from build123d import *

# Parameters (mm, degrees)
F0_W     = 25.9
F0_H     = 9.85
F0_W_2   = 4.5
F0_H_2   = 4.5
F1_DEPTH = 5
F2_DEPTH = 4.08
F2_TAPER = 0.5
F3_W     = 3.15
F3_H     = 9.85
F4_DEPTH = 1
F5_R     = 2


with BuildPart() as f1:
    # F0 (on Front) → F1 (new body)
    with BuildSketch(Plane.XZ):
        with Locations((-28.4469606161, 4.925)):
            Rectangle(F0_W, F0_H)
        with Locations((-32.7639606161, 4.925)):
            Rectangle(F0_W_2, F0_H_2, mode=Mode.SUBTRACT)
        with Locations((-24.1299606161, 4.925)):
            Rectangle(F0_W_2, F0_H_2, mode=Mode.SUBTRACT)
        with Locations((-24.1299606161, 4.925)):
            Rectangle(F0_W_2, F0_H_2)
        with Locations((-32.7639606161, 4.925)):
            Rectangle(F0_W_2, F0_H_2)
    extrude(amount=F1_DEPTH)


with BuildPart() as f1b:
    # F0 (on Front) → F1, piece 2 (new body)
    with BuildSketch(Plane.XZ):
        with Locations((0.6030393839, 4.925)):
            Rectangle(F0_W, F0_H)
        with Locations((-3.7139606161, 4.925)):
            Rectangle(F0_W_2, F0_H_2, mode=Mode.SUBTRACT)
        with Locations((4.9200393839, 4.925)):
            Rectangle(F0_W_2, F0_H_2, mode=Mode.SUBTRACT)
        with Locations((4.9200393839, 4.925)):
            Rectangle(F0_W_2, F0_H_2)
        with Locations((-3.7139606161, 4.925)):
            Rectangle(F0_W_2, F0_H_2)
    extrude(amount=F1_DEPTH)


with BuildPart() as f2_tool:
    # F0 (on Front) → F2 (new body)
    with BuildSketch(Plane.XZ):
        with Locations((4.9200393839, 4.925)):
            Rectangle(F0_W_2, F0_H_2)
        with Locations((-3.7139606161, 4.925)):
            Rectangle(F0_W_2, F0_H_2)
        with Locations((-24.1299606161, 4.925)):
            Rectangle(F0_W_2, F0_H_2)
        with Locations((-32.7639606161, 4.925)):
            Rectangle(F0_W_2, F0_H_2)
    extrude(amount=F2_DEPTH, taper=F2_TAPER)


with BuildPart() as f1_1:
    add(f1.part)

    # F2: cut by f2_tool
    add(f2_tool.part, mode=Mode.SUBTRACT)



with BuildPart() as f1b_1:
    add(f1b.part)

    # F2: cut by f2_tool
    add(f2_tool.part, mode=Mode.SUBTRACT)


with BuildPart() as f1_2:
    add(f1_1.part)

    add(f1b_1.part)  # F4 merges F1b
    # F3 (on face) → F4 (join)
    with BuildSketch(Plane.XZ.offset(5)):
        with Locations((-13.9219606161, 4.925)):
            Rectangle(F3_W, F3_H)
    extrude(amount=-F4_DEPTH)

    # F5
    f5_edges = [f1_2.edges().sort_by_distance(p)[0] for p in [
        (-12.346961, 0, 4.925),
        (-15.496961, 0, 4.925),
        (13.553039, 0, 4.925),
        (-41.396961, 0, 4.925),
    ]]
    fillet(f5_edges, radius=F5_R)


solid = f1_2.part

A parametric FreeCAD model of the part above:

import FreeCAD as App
import Part
import Sketcher
from FreeCAD import Vector


def edges_at(feature, points):
    """Names of the edges that pass closest to the given points."""
    edges = feature.Shape.Edges
    near = lambda p: min(range(len(edges)), key=lambda i: edges[i].distToShape(Part.Vertex(*p))[0])
    return sorted({f"Edge{near(p) + 1}" for p in points})

doc = App.newDocument("Part")
body = doc.addObject("PartDesign::Body", "Body")

# Sketch on XZ plane
sketch1 = doc.addObject("Sketcher::SketchObject", "Sketch")
body.addObject(sketch1)
sketch1.AttachmentSupport = (doc.XZ_Plane, [""])
sketch1.MapMode = "FlatFace"
sketch1.addGeometry([
    Part.LineSegment(Vector(-41, 10, 0), Vector(-41, 0, 0)),
    Part.LineSegment(Vector(-41, 0, 0), Vector(-15, 0, 0)),
    Part.LineSegment(Vector(-15, 0, 0), Vector(-15, 10, 0)),
    Part.LineSegment(Vector(-15, 10, 0), Vector(-41, 10, 0)),
], False)
sketch1.addConstraint([
    Sketcher.Constraint("Coincident", 0, 2, 1, 1),
    Sketcher.Constraint("Coincident", 1, 2, 2, 1),
    Sketcher.Constraint("Coincident", 2, 2, 3, 1),
    Sketcher.Constraint("Coincident", 3, 2, 0, 1),
    Sketcher.Constraint("Vertical", 0),
    Sketcher.Constraint("Horizontal", 1),
    Sketcher.Constraint("Vertical", 2),
    Sketcher.Constraint("Horizontal", 3),
    Sketcher.Constraint("PointOnObject", 0, 2, -1),
    Sketcher.Constraint("DistanceX", 1, 1, 1, 2, 25.9),
    Sketcher.Constraint("DistanceY", 0, 2, 0, 1, 9.85),
    Sketcher.Constraint("DistanceX", 0, 2, -1, 1, 41.396961),
])
pad1 = doc.addObject("PartDesign::Pad", "Pad")
body.addObject(pad1)
pad1.Profile = sketch1
pad1.Length = 5
body2 = doc.addObject("PartDesign::Body", "Body001")

# Sketch on XZ plane
sketch2 = doc.addObject("Sketcher::SketchObject", "Sketch001")
body2.addObject(sketch2)
sketch2.AttachmentSupport = (doc.getObject("XZ_Plane001"), [""])
sketch2.MapMode = "FlatFace"
sketch2.addGeometry([
    Part.LineSegment(Vector(-12, 10, 0), Vector(-12, 0, 0)),
    Part.LineSegment(Vector(-12, 0, 0), Vector(14, 0, 0)),
    Part.LineSegment(Vector(14, 0, 0), Vector(14, 10, 0)),
    Part.LineSegment(Vector(14, 10, 0), Vector(-12, 10, 0)),
], False)
sketch2.addConstraint([
    Sketcher.Constraint("Coincident", 0, 2, 1, 1),
    Sketcher.Constraint("Coincident", 1, 2, 2, 1),
    Sketcher.Constraint("Coincident", 2, 2, 3, 1),
    Sketcher.Constraint("Coincident", 3, 2, 0, 1),
    Sketcher.Constraint("Vertical", 0),
    Sketcher.Constraint("Horizontal", 1),
    Sketcher.Constraint("Vertical", 2),
    Sketcher.Constraint("Horizontal", 3),
    Sketcher.Constraint("PointOnObject", 0, 2, -1),
    Sketcher.Constraint("DistanceX", 1, 1, 1, 2, 25.9),
    Sketcher.Constraint("DistanceY", 0, 2, 0, 1, 9.85),
    Sketcher.Constraint("DistanceX", 0, 2, -1, 1, 12.346961),
])
pad2 = doc.addObject("PartDesign::Pad", "Pad001")
body2.addObject(pad2)
pad2.Profile = sketch2
pad2.Length = 5
body3 = doc.addObject("PartDesign::Body", "Body002")
body3.AllowCompound = True

# Sketch on XZ plane
sketch3 = doc.addObject("Sketcher::SketchObject", "Sketch002")
body3.addObject(sketch3)
sketch3.AttachmentSupport = (doc.getObject("XZ_Plane002"), [""])
sketch3.MapMode = "FlatFace"
sketch3.addGeometry([
    Part.LineSegment(Vector(2.7, 7.2, 0), Vector(2.7, 2.7, 0)),  # 0
    Part.LineSegment(Vector(2.7, 2.7, 0), Vector(7.2, 2.7, 0)),  # 1
    Part.LineSegment(Vector(7.2, 2.7, 0), Vector(7.2, 7.2, 0)),  # 2
    Part.LineSegment(Vector(7.2, 7.2, 0), Vector(2.7, 7.2, 0)),  # 3
    Part.LineSegment(Vector(-6, 7.2, 0), Vector(-6, 2.7, 0)),  # 4
    Part.LineSegment(Vector(-6, 2.7, 0), Vector(-1.5, 2.7, 0)),  # 5
    Part.LineSegment(Vector(-1.5, 2.7, 0), Vector(-1.5, 7.2, 0)),  # 6
    Part.LineSegment(Vector(-1.5, 7.2, 0), Vector(-6, 7.2, 0)),  # 7
    Part.LineSegment(Vector(-26.4, 7.2, 0), Vector(-26.4, 2.7, 0)),  # 8
    Part.LineSegment(Vector(-26.4, 2.7, 0), Vector(-21.9, 2.7, 0)),  # 9
    Part.LineSegment(Vector(-21.9, 2.7, 0), Vector(-21.9, 7.2, 0)),  # 10
    Part.LineSegment(Vector(-21.9, 7.2, 0), Vector(-26.4, 7.2, 0)),  # 11
    Part.LineSegment(Vector(-35, 7.2, 0), Vector(-35, 2.7, 0)),  # 12
    Part.LineSegment(Vector(-35, 2.7, 0), Vector(-30.5, 2.7, 0)),  # 13
    Part.LineSegment(Vector(-30.5, 2.7, 0), Vector(-30.5, 7.2, 0)),  # 14
    Part.LineSegment(Vector(-30.5, 7.2, 0), Vector(-35, 7.2, 0)),  # 15
], False)
sketch3.addConstraint([
    Sketcher.Constraint("Coincident", 0, 2, 1, 1),
    Sketcher.Constraint("Coincident", 1, 2, 2, 1),
    Sketcher.Constraint("Coincident", 2, 2, 3, 1),
    Sketcher.Constraint("Coincident", 3, 2, 0, 1),
    Sketcher.Constraint("Coincident", 4, 2, 5, 1),
    Sketcher.Constraint("Coincident", 5, 2, 6, 1),
    Sketcher.Constraint("Coincident", 6, 2, 7, 1),
    Sketcher.Constraint("Coincident", 7, 2, 4, 1),
    Sketcher.Constraint("Coincident", 8, 2, 9, 1),
    Sketcher.Constraint("Coincident", 9, 2, 10, 1),
    Sketcher.Constraint("Coincident", 10, 2, 11, 1),
    Sketcher.Constraint("Coincident", 11, 2, 8, 1),
    Sketcher.Constraint("Coincident", 12, 2, 13, 1),
    Sketcher.Constraint("Coincident", 13, 2, 14, 1),
    Sketcher.Constraint("Coincident", 14, 2, 15, 1),
    Sketcher.Constraint("Coincident", 15, 2, 12, 1),
    Sketcher.Constraint("Vertical", 0),
    Sketcher.Constraint("Horizontal", 1),
    Sketcher.Constraint("Vertical", 2),
    Sketcher.Constraint("Horizontal", 3),
    Sketcher.Constraint("Vertical", 4),
    Sketcher.Constraint("Horizontal", 5),
    Sketcher.Constraint("Vertical", 6),
    Sketcher.Constraint("Horizontal", 7),
    Sketcher.Constraint("Vertical", 8),
    Sketcher.Constraint("Horizontal", 9),
    Sketcher.Constraint("Vertical", 10),
    Sketcher.Constraint("Horizontal", 11),
    Sketcher.Constraint("Vertical", 12),
    Sketcher.Constraint("Horizontal", 13),
    Sketcher.Constraint("Vertical", 14),
    Sketcher.Constraint("Horizontal", 15),
    Sketcher.Constraint("Horizontal", 1, 2, 4, 2),
    Sketcher.Constraint("Horizontal", 3, 2, 6, 2),
    Sketcher.Constraint("Horizontal", 5, 2, 8, 2),
    Sketcher.Constraint("Horizontal", 7, 2, 10, 2),
    Sketcher.Constraint("Horizontal", 9, 2, 12, 2),
    Sketcher.Constraint("Horizontal", 11, 2, 14, 2),
    Sketcher.Constraint("Equal", 3, 5),
    Sketcher.Constraint("Equal", 7, 9),
    Sketcher.Constraint("Equal", 11, 13),
    Sketcher.Constraint("Equal", 15, 0),
    Sketcher.Constraint("DistanceX", 1, 1, 1, 2, 4.5),
    Sketcher.Constraint("DistanceX", 8, 2, 0, 2, 29.05),
    Sketcher.Constraint("DistanceX", 12, 2, 4, 2, 29.05),
    Sketcher.Constraint("DistanceY", -1, 1, 0, 2, 2.675),
    Sketcher.Constraint("DistanceX", 4, 2, 0, 2, 8.634),
    Sketcher.Constraint("DistanceX", -1, 1, 0, 2, 2.670039),
])
pad3 = doc.addObject("PartDesign::Pad", "Pad002")
body3.addObject(pad3)
pad3.Profile = sketch3
pad3.Length = 4.08
pad3.TaperAngle = -0.5
doc.recompute()

body4 = doc.addObject("PartDesign::Body", "Body003")
body4.BaseFeature = body3
boolean = doc.addObject("PartDesign::Boolean", "Boolean")
body.addObject(boolean)
boolean.Type = "Cut"
boolean.addObjects([body4])
doc.recompute()

boolean2 = doc.addObject("PartDesign::Boolean", "Boolean001")
body2.addObject(boolean2)
boolean2.Type = "Cut"
boolean2.addObjects([body3])
body.AllowCompound = True
doc.recompute()

boolean3 = doc.addObject("PartDesign::Boolean", "Boolean002")
body.addObject(boolean3)
boolean3.Type = "Fuse"
boolean3.addObjects([body2])

# Sketch on XZ plane
sketch4 = doc.addObject("Sketcher::SketchObject", "Sketch003")
body.addObject(sketch4)
sketch4.AttachmentSupport = (doc.XZ_Plane, [""])
sketch4.MapMode = "FlatFace"
sketch4.AttachmentOffset = App.Placement(Vector(0, 0, 5), App.Rotation())
sketch4.addGeometry([
    Part.LineSegment(Vector(-15.5, 9.8, 0), Vector(-15.5, 0, 0)),
    Part.LineSegment(Vector(-15.5, 0, 0), Vector(-12.3, 0, 0)),
    Part.LineSegment(Vector(-12.3, 0, 0), Vector(-12.3, 9.8, 0)),
    Part.LineSegment(Vector(-12.3, 9.8, 0), Vector(-15.5, 9.8, 0)),
], False)
sketch4.addConstraint([
    Sketcher.Constraint("Coincident", 0, 2, 1, 1),
    Sketcher.Constraint("Coincident", 1, 2, 2, 1),
    Sketcher.Constraint("Coincident", 2, 2, 3, 1),
    Sketcher.Constraint("Coincident", 3, 2, 0, 1),
    Sketcher.Constraint("Vertical", 0),
    Sketcher.Constraint("Horizontal", 1),
    Sketcher.Constraint("Vertical", 2),
    Sketcher.Constraint("Horizontal", 3),
    Sketcher.Constraint("PointOnObject", 0, 2, -1),
    Sketcher.Constraint("DistanceX", 1, 1, 1, 2, 3.15),
    Sketcher.Constraint("DistanceY", 0, 2, 0, 1, 9.85),
    Sketcher.Constraint("DistanceX", 0, 2, -1, 1, 15.496961),
])
pad4 = doc.addObject("PartDesign::Pad", "Pad003")
body.addObject(pad4)
pad4.Profile = sketch4
pad4.Length = 1
pad4.Reversed = True
doc.recompute()

fillet = doc.addObject("PartDesign::Fillet", "Fillet")
body.addObject(fillet)
fillet.Base = (pad4, edges_at(pad4, [
    (-12.347, 0, 4.925),
    (-15.497, 0, 4.925),
    (13.553, 0, 4.925),
    (-41.397, 0, 4.925),
]))
fillet.Radius = 2

doc.recompute()
